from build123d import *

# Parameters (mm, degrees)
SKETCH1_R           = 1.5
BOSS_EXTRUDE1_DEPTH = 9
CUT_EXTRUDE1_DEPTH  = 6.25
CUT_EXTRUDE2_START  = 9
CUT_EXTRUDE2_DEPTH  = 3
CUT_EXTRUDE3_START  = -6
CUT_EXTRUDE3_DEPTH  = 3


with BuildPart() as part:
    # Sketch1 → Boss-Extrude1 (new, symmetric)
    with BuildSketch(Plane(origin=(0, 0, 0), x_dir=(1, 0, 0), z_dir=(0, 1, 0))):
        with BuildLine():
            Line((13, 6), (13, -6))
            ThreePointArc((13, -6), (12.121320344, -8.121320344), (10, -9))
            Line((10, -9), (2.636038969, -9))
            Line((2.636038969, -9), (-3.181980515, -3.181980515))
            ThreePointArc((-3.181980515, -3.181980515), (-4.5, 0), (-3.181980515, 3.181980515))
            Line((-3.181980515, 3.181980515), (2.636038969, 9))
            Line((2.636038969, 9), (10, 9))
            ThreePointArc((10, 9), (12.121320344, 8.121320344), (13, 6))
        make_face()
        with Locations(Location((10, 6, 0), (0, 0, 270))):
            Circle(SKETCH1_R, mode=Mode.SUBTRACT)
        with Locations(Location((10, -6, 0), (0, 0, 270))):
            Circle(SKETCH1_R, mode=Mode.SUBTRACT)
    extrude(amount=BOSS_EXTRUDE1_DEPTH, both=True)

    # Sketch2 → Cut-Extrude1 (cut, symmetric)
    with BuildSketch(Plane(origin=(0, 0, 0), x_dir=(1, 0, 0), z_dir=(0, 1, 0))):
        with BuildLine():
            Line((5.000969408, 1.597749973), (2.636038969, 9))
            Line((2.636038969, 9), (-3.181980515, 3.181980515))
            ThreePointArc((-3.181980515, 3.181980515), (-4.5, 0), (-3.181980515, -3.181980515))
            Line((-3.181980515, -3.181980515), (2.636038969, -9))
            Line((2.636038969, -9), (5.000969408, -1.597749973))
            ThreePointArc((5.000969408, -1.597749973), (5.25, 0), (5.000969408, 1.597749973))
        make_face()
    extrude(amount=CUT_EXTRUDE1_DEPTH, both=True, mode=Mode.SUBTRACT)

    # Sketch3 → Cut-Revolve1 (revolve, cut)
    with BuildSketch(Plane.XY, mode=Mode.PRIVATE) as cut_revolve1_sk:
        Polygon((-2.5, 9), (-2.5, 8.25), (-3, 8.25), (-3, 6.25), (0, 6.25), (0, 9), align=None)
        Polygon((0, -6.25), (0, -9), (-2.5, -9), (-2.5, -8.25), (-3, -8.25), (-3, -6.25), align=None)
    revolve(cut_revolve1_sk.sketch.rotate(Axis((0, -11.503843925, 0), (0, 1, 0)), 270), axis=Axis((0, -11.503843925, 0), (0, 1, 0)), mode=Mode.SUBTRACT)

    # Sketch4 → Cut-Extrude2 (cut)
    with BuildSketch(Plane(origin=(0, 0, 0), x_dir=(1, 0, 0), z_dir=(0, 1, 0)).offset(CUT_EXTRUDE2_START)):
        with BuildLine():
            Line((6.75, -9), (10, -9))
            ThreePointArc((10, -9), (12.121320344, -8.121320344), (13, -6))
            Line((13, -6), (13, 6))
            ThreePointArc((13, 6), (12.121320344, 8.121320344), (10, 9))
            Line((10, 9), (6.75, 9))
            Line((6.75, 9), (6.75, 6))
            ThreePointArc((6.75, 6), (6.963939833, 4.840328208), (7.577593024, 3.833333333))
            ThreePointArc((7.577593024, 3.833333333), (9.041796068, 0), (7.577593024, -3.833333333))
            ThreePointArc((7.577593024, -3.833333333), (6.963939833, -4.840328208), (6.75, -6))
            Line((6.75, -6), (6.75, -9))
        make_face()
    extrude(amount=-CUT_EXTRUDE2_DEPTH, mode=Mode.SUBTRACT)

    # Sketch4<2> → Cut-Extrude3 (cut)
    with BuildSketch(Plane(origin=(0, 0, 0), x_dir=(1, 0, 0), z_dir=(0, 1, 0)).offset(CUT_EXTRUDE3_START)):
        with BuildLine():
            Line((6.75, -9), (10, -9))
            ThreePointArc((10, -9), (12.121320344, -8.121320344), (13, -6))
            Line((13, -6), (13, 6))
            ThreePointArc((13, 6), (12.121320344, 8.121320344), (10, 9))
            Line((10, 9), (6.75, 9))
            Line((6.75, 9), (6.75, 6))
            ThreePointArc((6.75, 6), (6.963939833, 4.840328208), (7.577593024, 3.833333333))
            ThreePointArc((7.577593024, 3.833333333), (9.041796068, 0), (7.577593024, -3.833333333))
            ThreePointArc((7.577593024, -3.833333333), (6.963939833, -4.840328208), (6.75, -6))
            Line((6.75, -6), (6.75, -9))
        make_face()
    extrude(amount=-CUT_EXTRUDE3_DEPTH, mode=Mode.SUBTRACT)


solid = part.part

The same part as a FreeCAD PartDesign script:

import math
import FreeCAD as App
import Part
import Sketcher
Q = App.Units.Quantity

doc = App.newDocument("Part")
body = doc.addObject("PartDesign::Body", "Body")

# Sketch on XZ plane
sketch1 = body.newObject("Sketcher::SketchObject", "Sketch")
sketch1.AttachmentSupport = (doc.getObject("XZ_Plane"), [""])
sketch1.MapMode = "FlatFace"
sketch1.addGeometry([
    Part.LineSegment(App.Vector(13, 6, 0), App.Vector(13, -6, 0)),  # 0
    Part.ArcOfCircle(Part.Circle(App.Vector(10, -6, 0), App.Vector(0, 0, 1), 3), math.radians(-90), math.radians(0)),  # 1
    Part.LineSegment(App.Vector(10, -9, 0), App.Vector(2.6, -9, 0)),  # 2
    Part.LineSegment(App.Vector(2.6, -9, 0), App.Vector(-3.2, -3.2, 0)),  # 3
    Part.ArcOfCircle(Part.Circle(App.Vector(0, 0, 0), App.Vector(0, 0, 1), 4.5), math.radians(135), math.radians(225)),  # 4
    Part.LineSegment(App.Vector(-3.2, 3.2, 0), App.Vector(2.6, 9, 0)),  # 5
    Part.LineSegment(App.Vector(2.6, 9, 0), App.Vector(10, 9, 0)),  # 6
    Part.ArcOfCircle(Part.Circle(App.Vector(10, 6, 0), App.Vector(0, 0, 1), 3), math.radians(0), math.radians(90)),  # 7
    Part.Circle(App.Vector(10, 6, 0), App.Vector(0, 0, 1), 1.5),  # 8
    Part.Circle(App.Vector(10, -6, 0), App.Vector(0, 0, 1), 1.5),  # 9
], False)
sketch1.addConstraint([
    Sketcher.Constraint("Tangent", 0, 2, 1, 2),
    Sketcher.Constraint("Tangent", 1, 1, 2, 1),
    Sketcher.Constraint("Coincident", 2, 2, 3, 1),
    Sketcher.Constraint("Tangent", 3, 2, 4, 2),
    Sketcher.Constraint("Tangent", 4, 1, 5, 1),
    Sketcher.Constraint("Coincident", 5, 2, 6, 1),
    Sketcher.Constraint("Tangent", 6, 2, 7, 2),
    Sketcher.Constraint("Tangent", 7, 1, 0, 1),
    Sketcher.Constraint("Vertical", 0),
    Sketcher.Constraint("Horizontal", 2),
    Sketcher.Constraint("Horizontal", 6),
    Sketcher.Constraint("Coincident", 4, 3, -1, 1),
    Sketcher.Constraint("Coincident", 8, 3, 7, 3),
    Sketcher.Constraint("Coincident", 9, 3, 1, 3),
    Sketcher.Constraint("Equal", 1, 7),
    Sketcher.Constraint("Equal", 8, 9),
    Sketcher.Constraint("Symmetric", 2, 2, 5, 2, -1),
    Sketcher.Constraint("Perpendicular", 3, 5),
    Sketcher.Constraint("Diameter", 8, Q("3 mm")),
    Sketcher.Constraint("Radius", 1, Q("3 mm")),
    Sketcher.Constraint("Radius", 4, Q("4.5 mm")),
    Sketcher.Constraint("DistanceY", 0, 2, 0, 1, Q("12 mm")),
    Sketcher.Constraint("DistanceX", -1, 1, 1, 3, Q("10 mm")),
])
pad1 = body.newObject("PartDesign::Pad", "Pad")
pad1.Profile = sketch1
pad1.Length = 18
pad1.Midplane = True

# Sketch on XZ plane
sketch2 = body.newObject("Sketcher::SketchObject", "Sketch001")
sketch2.AttachmentSupport = (doc.getObject("XZ_Plane"), [""])
sketch2.MapMode = "FlatFace"
sketch2.addGeometry([
    Part.LineSegment(App.Vector(5, -1.6, 0), App.Vector(2.6, -9, 0)),  # 0
    Part.LineSegment(App.Vector(2.6, -9, 0), App.Vector(-3.2, -3.2, 0)),  # 1
    Part.ArcOfCircle(Part.Circle(App.Vector(0, 0, 0), App.Vector(0, 0, 1), 4.5), math.radians(135), math.radians(225)),  # 2
    Part.LineSegment(App.Vector(-3.2, 3.2, 0), App.Vector(2.6, 9, 0)),  # 3
    Part.LineSegment(App.Vector(2.6, 9, 0), App.Vector(5, 1.6, 0)),  # 4
    Part.ArcOfCircle(Part.Circle(App.Vector(0, 0, 0), App.Vector(0, 0, 1), 5.2), math.radians(-18), math.radians(18)),  # 5
], False)
sketch2.addConstraint([
    Sketcher.Constraint("Coincident", 0, 2, 1, 1),
    Sketcher.Constraint("Tangent", 1, 2, 2, 2),
    Sketcher.Constraint("Tangent", 2, 1, 3, 1),
    Sketcher.Constraint("Coincident", 3, 2, 4, 1),
    Sketcher.Constraint("Tangent", 4, 2, 5, 2),
    Sketcher.Constraint("Tangent", 5, 1, 0, 1),
    Sketcher.Constraint("Coincident", 2, 3, -1, 1),
    Sketcher.Constraint("Coincident", 5, 3, -1, 1),
    Sketcher.Constraint("Symmetric", 0, 2, 3, 2, -1),
    Sketcher.Constraint("Perpendicular", 1, 3),
    Sketcher.Constraint("Radius", 2, Q("4.5 mm")),
    Sketcher.Constraint("Radius", 5, Q("5.25 mm")),
    Sketcher.Constraint("DistanceY", 0, 2, -1, 1, Q("9 mm")),
])
pocket1 = body.newObject("PartDesign::Pocket", "Pocket")
pocket1.Profile = sketch2
pocket1.Length = 12.5
pocket1.Midplane = True

# Sketch on XY plane
sketch3 = body.newObject("Sketcher::SketchObject", "Sketch002")
sketch3.AttachmentSupport = (doc.getObject("XY_Plane"), [""])
sketch3.MapMode = "FlatFace"
sketch3.addGeometry([
    Part.LineSegment(App.Vector(-2.5, 9, 0), App.Vector(-2.5, 8.2, 0)),  # 0
    Part.LineSegment(App.Vector(-2.5, 8.2, 0), App.Vector(-3, 8.2, 0)),  # 1
    Part.LineSegment(App.Vector(-3, 8.2, 0), App.Vector(-3, 6.2, 0)),  # 2
    Part.LineSegment(App.Vector(-3, 6.2, 0), App.Vector(0, 6.2, 0)),  # 3
    Part.LineSegment(App.Vector(0, 6.2, 0), App.Vector(0, 9, 0)),  # 4
    Part.LineSegment(App.Vector(0, 9, 0), App.Vector(-2.5, 9, 0)),  # 5
    Part.LineSegment(App.Vector(0, -9, 0), App.Vector(0, -6.2, 0)),  # 6
    Part.LineSegment(App.Vector(0, -6.2, 0), App.Vector(-3, -6.2, 0)),  # 7
    Part.LineSegment(App.Vector(-3, -6.2, 0), App.Vector(-3, -8.2, 0)),  # 8
    Part.LineSegment(App.Vector(-3, -8.2, 0), App.Vector(-2.5, -8.2, 0)),  # 9
    Part.LineSegment(App.Vector(-2.5, -8.2, 0), App.Vector(-2.5, -9, 0)),  # 10
    Part.LineSegment(App.Vector(-2.5, -9, 0), App.Vector(0, -9, 0)),  # 11
], False)
sketch3.addConstraint([
    Sketcher.Constraint("Coincident", 0, 2, 1, 1),
    Sketcher.Constraint("Coincident", 1, 2, 2, 1),
    Sketcher.Constraint("Coincident", 2, 2, 3, 1),
    Sketcher.Constraint("Coincident", 3, 2, 4, 1),
    Sketcher.Constraint("Coincident", 4, 2, 5, 1),
    Sketcher.Constraint("Coincident", 5, 2, 0, 1),
    Sketcher.Constraint("Coincident", 6, 2, 7, 1),
    Sketcher.Constraint("Coincident", 7, 2, 8, 1),
    Sketcher.Constraint("Coincident", 8, 2, 9, 1),
    Sketcher.Constraint("Coincident", 9, 2, 10, 1),
    Sketcher.Constraint("Coincident", 10, 2, 11, 1),
    Sketcher.Constraint("Coincident", 11, 2, 6, 1),
    Sketcher.Constraint("Vertical", 0),
    Sketcher.Constraint("Horizontal", 1),
    Sketcher.Constraint("Vertical", 2),
    Sketcher.Constraint("Horizontal", 3),
    Sketcher.Constraint("Vertical", 4),
    Sketcher.Constraint("Horizontal", 5),
    Sketcher.Constraint("Vertical", 6),
    Sketcher.Constraint("Horizontal", 7),
    Sketcher.Constraint("Vertical", 8),
    Sketcher.Constraint("Horizontal", 9),
    Sketcher.Constraint("Vertical", 10),
    Sketcher.Constraint("Horizontal", 11),
    Sketcher.Constraint("Symmetric", 3, 2, 6, 2, -1, 1),
    Sketcher.Constraint("Symmetric", 1, 2, 8, 2, -1),
    Sketcher.Constraint("Symmetric", 5, 2, 10, 2, -1),
    Sketcher.Constraint("PointOnObject", 3, 2, -2),
    Sketcher.Constraint("DistanceX", 3, 1, 3, 2, Q("3 mm")),
    Sketcher.Constraint("DistanceY", 2, 2, 2, 1, Q("2 mm")),
    Sketcher.Constraint("DistanceX", 1, 2, 1, 1, Q("0.5 mm")),
    Sketcher.Constraint("DistanceY", -1, 1, 4, 2, Q("9 mm")),
    Sketcher.Constraint("DistanceY", 0, 2, 0, 1, Q("0.75 mm")),
])
groove = body.newObject("PartDesign::Groove", "Groove")
groove.Profile = sketch3
groove.ReferenceAxis = (sketch3, ["V_Axis"])
groove.Angle = 360

# Sketch on XZ plane
sketch4 = body.newObject("Sketcher::SketchObject", "Sketch003")
sketch4.AttachmentSupport = (doc.getObject("XZ_Plane"), [""])
sketch4.MapMode = "FlatFace"
sketch4.AttachmentOffset = App.Placement(App.Vector(0, 0, -9), App.Rotation())
sketch4.addGeometry([
    Part.LineSegment(App.Vector(6.8, 9, 0), App.Vector(10, 9, 0)),  # 0
    Part.ArcOfCircle(Part.Circle(App.Vector(10, 6, 0), App.Vector(0, 0, 1), 3), math.radians(0), math.radians(90)),  # 1
    Part.LineSegment(App.Vector(13, 6, 0), App.Vector(13, -6, 0)),  # 2
    Part.ArcOfCircle(Part.Circle(App.Vector(10, -6, 0), App.Vector(0, 0, 1), 3), math.radians(-90), math.radians(0)),  # 3
    Part.LineSegment(App.Vector(10, -9, 0), App.Vector(6.8, -9, 0)),  # 4
    Part.LineSegment(App.Vector(6.8, -9, 0), App.Vector(6.8, -6, 0)),  # 5
    Part.ArcOfCircle(Part.Circle(App.Vector(10, -6, 0), App.Vector(0, 0, 1), 3.2), math.radians(138), math.radians(180)),  # 6
    Part.ArcOfCircle(Part.Circle(App.Vector(3.3, 0, 0), App.Vector(0, 0, 1), 5.7), math.radians(-42), math.radians(42)),  # 7
    Part.ArcOfCircle(Part.Circle(App.Vector(10, 6, 0), App.Vector(0, 0, 1), 3.2), math.radians(180), math.radians(222)),  # 8
    Part.LineSegment(App.Vector(6.8, 6, 0), App.Vector(6.8, 9, 0)),  # 9
], False)
sketch4.addConstraint([
    Sketcher.Constraint("Tangent", 0, 2, 1, 2),
    Sketcher.Constraint("Tangent", 1, 1, 2, 1),
    Sketcher.Constraint("Tangent", 2, 2, 3, 2),
    Sketcher.Constraint("Tangent", 3, 1, 4, 1),
    Sketcher.Constraint("Coincident", 4, 2, 5, 1),
    Sketcher.Constraint("Tangent", 5, 2, 6, 2),
    Sketcher.Constraint("Tangent", 6, 1, 7, 1),
    Sketcher.Constraint("Tangent", 7, 2, 8, 2),
    Sketcher.Constraint("Tangent", 8, 1, 9, 1),
    Sketcher.Constraint("Coincident", 9, 2, 0, 1),
    Sketcher.Constraint("Horizontal", 0),
    Sketcher.Constraint("Vertical", 2),
    Sketcher.Constraint("Horizontal", 4),
    Sketcher.Constraint("Vertical", 5),
    Sketcher.Constraint("Vertical", 9),
    Sketcher.Constraint("Coincident", 6, 3, 3, 3),
    Sketcher.Constraint("Coincident", 8, 3, 1, 3),
    Sketcher.Constraint("Equal", 1, 3),
    Sketcher.Constraint("Equal", 6, 8),
    Sketcher.Constraint("PointOnObject", 7, 3, -1),
    Sketcher.Constraint("Radius", 1, Q("3 mm")),
    Sketcher.Constraint("DistanceY", 2, 2, 2, 1, Q("12 mm")),
    Sketcher.Constraint("Radius", 6, Q("3.25 mm")),
    Sketcher.Constraint("Radius", 7, Q("5.75 mm")),
    Sketcher.Constraint("DistanceX", -1, 1, 1, 3, Q("10 mm")),
])
pocket2 = body.newObject("PartDesign::Pocket", "Pocket001")
pocket2.Profile = sketch4
pocket2.Length = 3
pocket2.Reversed = True

# Sketch on XZ plane
sketch5 = body.newObject("Sketcher::SketchObject", "Sketch004")
sketch5.AttachmentSupport = (doc.getObject("XZ_Plane"), [""])
sketch5.MapMode = "FlatFace"
sketch5.AttachmentOffset = App.Placement(App.Vector(0, 0, 6), App.Rotation())
sketch5.addGeometry([
    Part.LineSegment(App.Vector(6.8, 9, 0), App.Vector(10, 9, 0)),  # 0
    Part.ArcOfCircle(Part.Circle(App.Vector(10, 6, 0), App.Vector(0, 0, 1), 3), math.radians(0), math.radians(90)),  # 1
    Part.LineSegment(App.Vector(13, 6, 0), App.Vector(13, -6, 0)),  # 2
    Part.ArcOfCircle(Part.Circle(App.Vector(10, -6, 0), App.Vector(0, 0, 1), 3), math.radians(-90), math.radians(0)),  # 3
    Part.LineSegment(App.Vector(10, -9, 0), App.Vector(6.8, -9, 0)),  # 4
    Part.LineSegment(App.Vector(6.8, -9, 0), App.Vector(6.8, -6, 0)),  # 5
    Part.ArcOfCircle(Part.Circle(App.Vector(10, -6, 0), App.Vector(0, 0, 1), 3.2), math.radians(138), math.radians(180)),  # 6
    Part.ArcOfCircle(Part.Circle(App.Vector(3.3, 0, 0), App.Vector(0, 0, 1), 5.7), math.radians(-42), math.radians(42)),  # 7
    Part.ArcOfCircle(Part.Circle(App.Vector(10, 6, 0), App.Vector(0, 0, 1), 3.2), math.radians(180), math.radians(222)),  # 8
    Part.LineSegment(App.Vector(6.8, 6, 0), App.Vector(6.8, 9, 0)),  # 9
], False)
sketch5.addConstraint([
    Sketcher.Constraint("Tangent", 0, 2, 1, 2),
    Sketcher.Constraint("Tangent", 1, 1, 2, 1),
    Sketcher.Constraint("Tangent", 2, 2, 3, 2),
    Sketcher.Constraint("Tangent", 3, 1, 4, 1),
    Sketcher.Constraint("Coincident", 4, 2, 5, 1),
    Sketcher.Constraint("Tangent", 5, 2, 6, 2),
    Sketcher.Constraint("Tangent", 6, 1, 7, 1),
    Sketcher.Constraint("Tangent", 7, 2, 8, 2),
    Sketcher.Constraint("Tangent", 8, 1, 9, 1),
    Sketcher.Constraint("Coincident", 9, 2, 0, 1),
    Sketcher.Constraint("Horizontal", 0),
    Sketcher.Constraint("Vertical", 2),
    Sketcher.Constraint("Horizontal", 4),
    Sketcher.Constraint("Vertical", 5),
    Sketcher.Constraint("Vertical", 9),
    Sketcher.Constraint("Coincident", 6, 3, 3, 3),
    Sketcher.Constraint("Coincident", 8, 3, 1, 3),
    Sketcher.Constraint("Equal", 1, 3),
    Sketcher.Constraint("Equal", 6, 8),
    Sketcher.Constraint("PointOnObject", 7, 3, -1),
    Sketcher.Constraint("Radius", 1, Q("3 mm")),
    Sketcher.Constraint("DistanceY", 2, 2, 2, 1, Q("12 mm")),
    Sketcher.Constraint("Radius", 6, Q("3.25 mm")),
    Sketcher.Constraint("Radius", 7, Q("5.75 mm")),
    Sketcher.Constraint("DistanceX", -1, 1, 1, 3, Q("10 mm")),
])
pocket3 = body.newObject("PartDesign::Pocket", "Pocket002")
pocket3.Profile = sketch5
pocket3.Length = 3
pocket3.Reversed = True

doc.recompute()
